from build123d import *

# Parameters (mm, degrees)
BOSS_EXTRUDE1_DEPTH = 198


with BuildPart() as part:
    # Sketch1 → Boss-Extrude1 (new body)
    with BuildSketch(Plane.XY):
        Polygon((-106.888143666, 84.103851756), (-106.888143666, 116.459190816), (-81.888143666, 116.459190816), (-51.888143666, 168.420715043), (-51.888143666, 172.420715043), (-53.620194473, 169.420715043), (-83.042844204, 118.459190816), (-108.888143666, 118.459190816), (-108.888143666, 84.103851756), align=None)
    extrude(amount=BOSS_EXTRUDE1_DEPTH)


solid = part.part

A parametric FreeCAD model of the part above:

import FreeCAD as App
import Part
import Sketcher
from FreeCAD import Vector
Q = App.Units.Quantity

doc = App.newDocument("Part")
body = doc.addObject("PartDesign::Body", "Body")

sketch1 = body.newObject("Sketcher::SketchObject", "Sketch")
sketch1.AttachmentSupport = (doc.getObject("XY_Plane"), [""])
sketch1.MapMode = "FlatFace"
sketch1.addGeometry([
    Part.LineSegment(Vector(-106.888144, 84.103852, 0), Vector(-106.888144, 116.459191, 0)),
    Part.LineSegment(Vector(-106.888144, 116.459191, 0), Vector(-81.888144, 116.459191, 0)),
    Part.LineSegment(Vector(-81.888144, 116.459191, 0), Vector(-51.888144, 168.420715, 0)),
    Part.LineSegment(Vector(-51.888144, 168.420715, 0), Vector(-51.888144, 172.420715, 0)),
    Part.LineSegment(Vector(-51.888144, 172.420715, 0), Vector(-53.620194, 169.420715, 0)),
    Part.LineSegment(Vector(-53.620194, 169.420715, 0), Vector(-83.042844, 118.459191, 0)),
    Part.LineSegment(Vector(-83.042844, 118.459191, 0), Vector(-108.888144, 118.459191, 0)),
    Part.LineSegment(Vector(-108.888144, 118.459191, 0), Vector(-108.888144, 84.103852, 0)),
    Part.LineSegment(Vector(-108.888144, 84.103852, 0), Vector(-106.888144, 84.103852, 0)),
], False)
sketch1.addConstraint([
    Sketcher.Constraint("Coincident", 0, 2, 1, 1),
    Sketcher.Constraint("Coincident", 1, 2, 2, 1),
    Sketcher.Constraint("Coincident", 2, 2, 3, 1),
    Sketcher.Constraint("Coincident", 3, 2, 4, 1),
    Sketcher.Constraint("Coincident", 4, 2, 5, 1),
    Sketcher.Constraint("Coincident", 5, 2, 6, 1),
    Sketcher.Constraint("Coincident", 6, 2, 7, 1),
    Sketcher.Constraint("Coincident", 7, 2, 8, 1),
    Sketcher.Constraint("Coincident", 8, 2, 0, 1),
    Sketcher.Constraint("Vertical", 0),
    Sketcher.Constraint("Horizontal", 1),
    Sketcher.Constraint("Vertical", 3),
    Sketcher.Constraint("Horizontal", 6),
    Sketcher.Constraint("Vertical", 7),
    Sketcher.Constraint("Horizontal", 8),
    Sketcher.Constraint("Parallel", 2, 4),
    Sketcher.Constraint("Parallel", 4, 5),
    Sketcher.Constraint("DistanceX", 1, 1, 1, 2, 25.0),
    Sketcher.Constraint("DistanceX", 8, 1, 8, 2, 2.0),
    Sketcher.Constraint("DistanceY", 3, 1, 3, 2, 4.0),
    Sketcher.Constraint("Angle", 2, Q("60 deg")),
    Sketcher.Constraint("Distance", 2, 60.0),
    Sketcher.Constraint("DistanceY", 2, 2, 4, 2, 1.0),
    Sketcher.Constraint("DistanceY", 1, 2, 5, 2, 2.0),
    Sketcher.Constraint("DistanceY", 0, 1, 0, 2, 32.355339),
    Sketcher.Constraint("DistanceY", -1, 1, 0, 2, 116.459191),
    Sketcher.Constraint("DistanceX", 0, 2, -1, 1, 106.888144),
])
pad1 = body.newObject("PartDesign::Pad", "Pad")
pad1.Profile = sketch1
pad1.Length = 198

doc.recompute()
